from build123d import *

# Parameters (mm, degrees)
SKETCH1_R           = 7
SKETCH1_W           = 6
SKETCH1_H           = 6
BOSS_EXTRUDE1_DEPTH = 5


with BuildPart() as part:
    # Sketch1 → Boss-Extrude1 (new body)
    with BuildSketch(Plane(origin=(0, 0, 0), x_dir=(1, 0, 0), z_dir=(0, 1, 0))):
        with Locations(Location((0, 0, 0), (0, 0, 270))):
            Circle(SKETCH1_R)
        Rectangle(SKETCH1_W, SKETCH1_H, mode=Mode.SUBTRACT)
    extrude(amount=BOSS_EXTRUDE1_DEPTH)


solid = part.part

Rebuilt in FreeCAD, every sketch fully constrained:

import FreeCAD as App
import Part
import Sketcher

V = App.Vector


def add_polygon(sketch, points):
    """Adds a closed chain of lines whose ends are joined by coincident constraints."""
    first, n = sketch.GeometryCount, len(points)
    for a, b in zip(points, points[1:] + points[:1]):
        sketch.addGeometry(Part.LineSegment(App.Vector(*a, 0), App.Vector(*b, 0)), False)
    for i in range(n):
        sketch.addConstraint(Sketcher.Constraint("Coincident", first + i, 2, first + (i + 1) % n, 1))

doc = App.newDocument("Part")
params = doc.addObject("Spreadsheet::Sheet", "Params")
for row, (alias, value) in enumerate([
    ("sketch1_diameter", "14 mm"),
    ("sketch1_width", "6 mm"),
    ("pad1_length", "5 mm"),
], start=1):
    params.set(f"A{row}", alias)
    params.set(f"B{row}", "=" + value)
    params.setAlias(f"B{row}", alias)

body = doc.addObject("PartDesign::Body", "Body")

sketch1 = body.newObject("Sketcher::SketchObject", "Sketch")
sketch1.AttachmentSupport = (doc.getObject("XZ_Plane"), [""])
sketch1.MapMode = "FlatFace"
sketch1.addGeometry(Part.Circle(V(0, 0, 0), V(0, 0, 1), 7), False)
add_polygon(sketch1, [(3, 3), (-3, 3), (-3, -3), (3, -3)])
sketch1.addConstraint([
    Sketcher.Constraint("Horizontal", 1),
    Sketcher.Constraint("Vertical", 2),
    Sketcher.Constraint("Horizontal", 3),
    Sketcher.Constraint("Vertical", 4),
    Sketcher.Constraint("Coincident", 0, 3, -1, 1),
    Sketcher.Constraint("Symmetric", 1, 2, 3, 2, -1, 1),
    Sketcher.Constraint("Equal", 3, 2),
    Sketcher.Constraint("Diameter", 0, 14.0),
    Sketcher.Constraint("DistanceX", 1, 2, 1, 1, 6.0),
])
sketch1.setExpression("Constraints[11]", "Params.sketch1_diameter")
sketch1.setExpression("Constraints[12]", "Params.sketch1_width")
pad1 = body.newObject("PartDesign::Pad", "Pad")
pad1.Profile = sketch1
pad1.setExpression("Length", "Params.pad1_length")
pad1.Reversed = True

doc.recompute()
